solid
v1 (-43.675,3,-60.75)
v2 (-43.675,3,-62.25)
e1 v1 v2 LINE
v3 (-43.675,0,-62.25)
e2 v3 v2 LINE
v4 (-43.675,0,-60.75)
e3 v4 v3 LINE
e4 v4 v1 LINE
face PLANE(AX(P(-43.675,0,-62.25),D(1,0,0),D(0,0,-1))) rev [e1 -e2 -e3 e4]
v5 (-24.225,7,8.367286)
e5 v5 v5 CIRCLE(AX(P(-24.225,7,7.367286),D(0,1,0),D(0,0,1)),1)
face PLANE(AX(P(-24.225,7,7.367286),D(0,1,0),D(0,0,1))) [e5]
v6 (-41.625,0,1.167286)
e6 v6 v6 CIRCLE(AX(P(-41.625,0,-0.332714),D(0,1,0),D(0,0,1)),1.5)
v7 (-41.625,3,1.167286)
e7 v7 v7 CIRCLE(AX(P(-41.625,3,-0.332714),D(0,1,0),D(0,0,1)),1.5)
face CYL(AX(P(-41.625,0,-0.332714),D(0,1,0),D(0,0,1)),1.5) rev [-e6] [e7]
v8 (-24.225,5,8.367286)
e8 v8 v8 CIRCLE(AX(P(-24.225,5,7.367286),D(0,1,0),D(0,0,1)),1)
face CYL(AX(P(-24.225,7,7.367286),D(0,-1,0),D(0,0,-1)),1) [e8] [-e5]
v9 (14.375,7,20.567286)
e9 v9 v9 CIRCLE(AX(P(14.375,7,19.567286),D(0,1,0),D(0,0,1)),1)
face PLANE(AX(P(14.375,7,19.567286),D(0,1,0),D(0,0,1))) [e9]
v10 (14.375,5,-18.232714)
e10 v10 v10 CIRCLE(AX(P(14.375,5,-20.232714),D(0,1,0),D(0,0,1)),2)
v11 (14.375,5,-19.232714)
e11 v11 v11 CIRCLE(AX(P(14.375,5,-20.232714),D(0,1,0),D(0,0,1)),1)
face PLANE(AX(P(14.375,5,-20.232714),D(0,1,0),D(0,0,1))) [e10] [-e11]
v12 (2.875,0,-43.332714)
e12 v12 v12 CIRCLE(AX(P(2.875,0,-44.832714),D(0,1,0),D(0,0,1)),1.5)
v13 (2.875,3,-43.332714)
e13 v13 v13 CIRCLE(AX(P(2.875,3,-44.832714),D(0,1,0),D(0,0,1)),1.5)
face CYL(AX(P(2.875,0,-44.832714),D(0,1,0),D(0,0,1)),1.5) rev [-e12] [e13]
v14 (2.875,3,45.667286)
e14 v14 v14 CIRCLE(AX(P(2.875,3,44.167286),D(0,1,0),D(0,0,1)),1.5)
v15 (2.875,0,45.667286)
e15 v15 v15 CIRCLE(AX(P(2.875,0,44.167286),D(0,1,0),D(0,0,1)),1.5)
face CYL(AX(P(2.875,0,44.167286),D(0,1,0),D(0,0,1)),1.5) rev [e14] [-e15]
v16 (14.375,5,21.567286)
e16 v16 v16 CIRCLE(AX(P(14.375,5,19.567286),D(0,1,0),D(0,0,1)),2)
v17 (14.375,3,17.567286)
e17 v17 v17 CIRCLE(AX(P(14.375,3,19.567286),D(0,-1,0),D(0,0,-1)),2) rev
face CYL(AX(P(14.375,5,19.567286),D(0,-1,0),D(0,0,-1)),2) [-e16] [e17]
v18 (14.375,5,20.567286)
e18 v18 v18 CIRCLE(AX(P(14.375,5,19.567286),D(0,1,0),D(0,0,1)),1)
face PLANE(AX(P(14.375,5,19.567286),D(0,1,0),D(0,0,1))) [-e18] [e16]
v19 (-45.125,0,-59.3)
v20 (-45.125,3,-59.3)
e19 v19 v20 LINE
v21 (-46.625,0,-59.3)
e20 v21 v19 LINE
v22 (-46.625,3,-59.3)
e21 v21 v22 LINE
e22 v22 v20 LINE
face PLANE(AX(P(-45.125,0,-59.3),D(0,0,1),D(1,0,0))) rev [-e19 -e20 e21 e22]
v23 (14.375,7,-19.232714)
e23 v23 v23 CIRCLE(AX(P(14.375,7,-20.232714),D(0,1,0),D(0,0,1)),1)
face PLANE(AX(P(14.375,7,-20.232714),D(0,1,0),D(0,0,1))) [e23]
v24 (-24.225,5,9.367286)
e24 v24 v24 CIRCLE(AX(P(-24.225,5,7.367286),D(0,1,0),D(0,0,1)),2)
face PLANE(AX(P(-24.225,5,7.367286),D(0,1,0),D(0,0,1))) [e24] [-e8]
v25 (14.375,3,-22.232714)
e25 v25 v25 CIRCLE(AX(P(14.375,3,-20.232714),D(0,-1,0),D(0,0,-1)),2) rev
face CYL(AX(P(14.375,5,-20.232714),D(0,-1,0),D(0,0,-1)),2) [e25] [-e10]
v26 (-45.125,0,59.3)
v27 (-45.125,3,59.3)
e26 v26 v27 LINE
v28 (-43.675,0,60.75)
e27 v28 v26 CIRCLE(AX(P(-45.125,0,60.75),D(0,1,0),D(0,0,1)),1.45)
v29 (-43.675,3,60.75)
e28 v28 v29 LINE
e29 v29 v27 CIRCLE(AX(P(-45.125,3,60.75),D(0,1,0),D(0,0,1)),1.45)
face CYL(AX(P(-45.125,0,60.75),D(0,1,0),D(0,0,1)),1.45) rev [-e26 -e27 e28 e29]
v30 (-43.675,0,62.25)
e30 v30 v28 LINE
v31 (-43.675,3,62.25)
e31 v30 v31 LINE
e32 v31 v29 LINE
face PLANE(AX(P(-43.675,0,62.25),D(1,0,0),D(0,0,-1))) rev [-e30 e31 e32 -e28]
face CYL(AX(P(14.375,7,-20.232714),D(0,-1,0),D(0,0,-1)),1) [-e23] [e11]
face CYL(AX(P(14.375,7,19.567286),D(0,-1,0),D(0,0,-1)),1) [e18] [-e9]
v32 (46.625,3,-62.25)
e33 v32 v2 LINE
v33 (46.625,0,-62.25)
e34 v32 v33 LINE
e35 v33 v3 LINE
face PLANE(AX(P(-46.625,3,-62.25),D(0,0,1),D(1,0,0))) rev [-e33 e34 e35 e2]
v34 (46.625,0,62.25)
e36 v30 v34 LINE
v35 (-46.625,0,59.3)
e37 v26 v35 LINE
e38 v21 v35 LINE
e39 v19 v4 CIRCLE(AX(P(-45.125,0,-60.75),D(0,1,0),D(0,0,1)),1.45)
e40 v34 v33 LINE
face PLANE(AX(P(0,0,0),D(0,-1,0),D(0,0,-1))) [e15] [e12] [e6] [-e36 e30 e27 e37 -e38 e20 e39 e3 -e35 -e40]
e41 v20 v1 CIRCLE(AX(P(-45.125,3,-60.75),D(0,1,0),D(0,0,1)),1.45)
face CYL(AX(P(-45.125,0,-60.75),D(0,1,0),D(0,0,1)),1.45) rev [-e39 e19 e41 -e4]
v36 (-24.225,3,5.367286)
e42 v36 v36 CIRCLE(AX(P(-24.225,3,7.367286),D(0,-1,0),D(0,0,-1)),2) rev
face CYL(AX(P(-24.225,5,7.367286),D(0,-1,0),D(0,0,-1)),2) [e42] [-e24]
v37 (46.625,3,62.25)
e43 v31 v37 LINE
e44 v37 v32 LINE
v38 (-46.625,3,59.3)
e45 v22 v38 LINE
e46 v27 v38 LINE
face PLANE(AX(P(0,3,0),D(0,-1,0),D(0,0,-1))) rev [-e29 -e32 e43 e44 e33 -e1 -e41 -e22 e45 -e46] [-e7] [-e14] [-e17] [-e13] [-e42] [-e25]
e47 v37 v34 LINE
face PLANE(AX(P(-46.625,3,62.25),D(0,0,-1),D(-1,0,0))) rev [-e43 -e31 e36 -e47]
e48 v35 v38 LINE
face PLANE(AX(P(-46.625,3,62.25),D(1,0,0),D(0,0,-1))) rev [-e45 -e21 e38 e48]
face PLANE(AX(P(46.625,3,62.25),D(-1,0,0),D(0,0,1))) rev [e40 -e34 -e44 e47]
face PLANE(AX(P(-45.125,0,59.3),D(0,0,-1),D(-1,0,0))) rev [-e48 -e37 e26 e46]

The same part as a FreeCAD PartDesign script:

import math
import FreeCAD as App
import Part
import Sketcher
from FreeCAD import Vector

doc = App.newDocument("Part")
body = doc.addObject("PartDesign::Body", "Body")

sketch1 = doc.addObject("Sketcher::SketchObject", "Sketch")
body.addObject(sketch1)
sketch1.AttachmentSupport = (doc.XZ_Plane, [""])
sketch1.MapMode = "FlatFace"
sketch1.addGeometry([
    Part.LineSegment(Vector(-47, -62, 0), Vector(-47, 62, 0)),
    Part.LineSegment(Vector(-47, 62, 0), Vector(47, 62, 0)),
    Part.LineSegment(Vector(47, 62, 0), Vector(47, -62, 0)),
    Part.LineSegment(Vector(47, -62, 0), Vector(-47, -62, 0)),
], False)
sketch1.addConstraint([
    Sketcher.Constraint("Coincident", 0, 2, 1, 1),
    Sketcher.Constraint("Coincident", 1, 2, 2, 1),
    Sketcher.Constraint("Coincident", 2, 2, 3, 1),
    Sketcher.Constraint("Coincident", 3, 2, 0, 1),
    Sketcher.Constraint("Vertical", 0),
    Sketcher.Constraint("Horizontal", 1),
    Sketcher.Constraint("Vertical", 2),
    Sketcher.Constraint("Horizontal", 3),
    Sketcher.Constraint("Symmetric", 0, 2, 2, 2, -1, 1),
    Sketcher.Constraint("DistanceY", 0, 1, 0, 2, 124.5),
    Sketcher.Constraint("DistanceX", 1, 1, 1, 2, 93.25),
])
pad1 = doc.addObject("PartDesign::Pad", "Pad")
body.addObject(pad1)
pad1.Profile = sketch1
pad1.Length = 3
pad1.Reversed = True

sketch2 = doc.addObject("Sketcher::SketchObject", "Sketch001")
body.addObject(sketch2)
sketch2.AttachmentSupport = (doc.XZ_Plane, [""])
sketch2.MapMode = "FlatFace"
sketch2.AttachmentOffset = App.Placement(Vector(0, 0, -3), App.Rotation())
sketch2.addGeometry([
    Part.Circle(Vector(-45.1, -60.8, 0), Vector(0, 0, 1), 1.4),
    Part.Circle(Vector(-45.1, 60.8, 0), Vector(0, 0, 1), 1.4),
], False)
sketch2.addConstraint([
    Sketcher.Constraint("Equal", 0, 1),
    Sketcher.Constraint("Symmetric", 0, 3, 1, 3, -1),
    Sketcher.Constraint("Diameter", 0, 2.9),
    Sketcher.Constraint("DistanceY", 0, 3, 1, 3, 121.5),
    Sketcher.Constraint("DistanceX", 0, 3, -1, 1, 45.125),
])
pocket1 = doc.addObject("PartDesign::Pocket", "Pocket")
body.addObject(pocket1)
pocket1.Profile = sketch2
pocket1.Type = "ThroughAll"
pocket1.Reversed = True

sketch3 = doc.addObject("Sketcher::SketchObject", "Sketch002")
body.addObject(sketch3)
sketch3.AttachmentSupport = (doc.XZ_Plane, [""])
sketch3.MapMode = "FlatFace"
sketch3.AttachmentOffset = App.Placement(Vector(0, 0, -3), App.Rotation())
sketch3.addGeometry([
    Part.Circle(Vector(-24.2, 7.4, 0), Vector(0, 0, 1), 2),
    Part.Circle(Vector(-24.2, 7.4, 0), Vector(0, 0, 1), 1),
    Part.Circle(Vector(14.4, -20.2, 0), Vector(0, 0, 1), 2),
    Part.Circle(Vector(14.4, -20.2, 0), Vector(0, 0, 1), 1),
    Part.Circle(Vector(14.4, 19.6, 0), Vector(0, 0, 1), 2),
    Part.Circle(Vector(14.4, 19.6, 0), Vector(0, 0, 1), 1),
], False)
sketch3.addConstraint([
    Sketcher.Constraint("Coincident", 1, 3, 0, 3),
    Sketcher.Constraint("Coincident", 3, 3, 2, 3),
    Sketcher.Constraint("Coincident", 5, 3, 4, 3),
    Sketcher.Constraint("Equal", 0, 2),
    Sketcher.Constraint("Equal", 1, 3),
    Sketcher.Constraint("Equal", 2, 4),
    Sketcher.Constraint("Equal", 3, 5),
    Sketcher.Constraint("Vertical", 3, 3, 4, 3),
    Sketcher.Constraint("Diameter", 0, 4.0),
    Sketcher.Constraint("Diameter", 1, 2.0),
    Sketcher.Constraint("DistanceX", 0, 3, 2, 3, 38.6),
    Sketcher.Constraint("DistanceY", 2, 3, 0, 3, 27.6),
    Sketcher.Constraint("DistanceY", 2, 3, 4, 3, 39.8),
    Sketcher.Constraint("DistanceX", 0, 3, -1, 1, 24.225),
    Sketcher.Constraint("DistanceY", -1, 1, 0, 3, 7.367286),
])
pad2 = doc.addObject("PartDesign::Pad", "Pad001")
body.addObject(pad2)
pad2.Profile = sketch3
pad2.Length = 2
pad2.Reversed = True

sketch4 = doc.addObject("Sketcher::SketchObject", "Sketch003")
body.addObject(sketch4)
sketch4.AttachmentSupport = (doc.XZ_Plane, [""])
sketch4.MapMode = "FlatFace"
sketch4.AttachmentOffset = App.Placement(Vector(0, 0, -3), App.Rotation())
sketch4.addGeometry([
    Part.Circle(Vector(-24.2, 7.4, 0), Vector(0, 0, 1), 1),
    Part.Circle(Vector(14.4, -20.2, 0), Vector(0, 0, 1), 1),
    Part.Circle(Vector(14.4, 19.6, 0), Vector(0, 0, 1), 1),
], False)
sketch4.addConstraint([
    Sketcher.Constraint("Equal", 0, 1),
    Sketcher.Constraint("Equal", 1, 2),
    Sketcher.Constraint("Vertical", 1, 3, 2, 3),
    Sketcher.Constraint("Diameter", 0, 2.0),
    Sketcher.Constraint("DistanceX", 0, 3, 1, 3, 38.6),
    Sketcher.Constraint("DistanceY", 1, 3, 0, 3, 27.6),
    Sketcher.Constraint("DistanceY", 1, 3, 2, 3, 39.8),
    Sketcher.Constraint("DistanceX", 0, 3, -1, 1, 24.225),
    Sketcher.Constraint("DistanceY", -1, 1, 0, 3, 7.367286),
])
pad3 = doc.addObject("PartDesign::Pad", "Pad002")
body.addObject(pad3)
pad3.Profile = sketch4
pad3.Length = 4
pad3.Reversed = True

sketch5 = doc.addObject("Sketcher::SketchObject", "Sketch004")
body.addObject(sketch5)
sketch5.AttachmentSupport = (doc.XZ_Plane, [""])
sketch5.MapMode = "FlatFace"
sketch5.AttachmentOffset = App.Placement(Vector(0, 0, -3), App.Rotation())
sketch5.addGeometry([
    Part.Circle(Vector(2.9, -44.8, 0), Vector(0, 0, 1), 1.5),
    Part.Circle(Vector(-41.6, -0.3, 0), Vector(0, 0, 1), 1.5),
    Part.Circle(Vector(2.9, 44.2, 0), Vector(0, 0, 1), 1.5),
], False)
sketch5.addConstraint([
    Sketcher.Constraint("Equal", 0, 1),
    Sketcher.Constraint("Equal", 1, 2),
    Sketcher.Constraint("Vertical", 0, 3, 2, 3),
    Sketcher.Constraint("Diameter", 0, 3.0),
    Sketcher.Constraint("DistanceY", 0, 3, 2, 3, 89.0),
    Sketcher.Constraint("DistanceX", 1, 3, 0, 3, 44.5),
    Sketcher.Constraint("DistanceY", 0, 3, 1, 3, 44.5),
    Sketcher.Constraint("DistanceX", -1, 1, 0, 3, 2.875),
    Sketcher.Constraint("DistanceY", 0, 3, -1, 1, 44.832714),
])
pocket2 = doc.addObject("PartDesign::Pocket", "Pocket001")
body.addObject(pocket2)
pocket2.Profile = sketch5
pocket2.Length = 3
pocket2.Reversed = True

sketch6 = doc.addObject("Sketcher::SketchObject", "Sketch005")
body.addObject(sketch6)
sketch6.AttachmentSupport = (doc.XZ_Plane, [""])
sketch6.MapMode = "FlatFace"
sketch6.AttachmentOffset = App.Placement(Vector(0, 0, -3), App.Rotation())
sketch6.addGeometry([
    Part.LineSegment(Vector(-46.6, -59.3, 0), Vector(-45.1, -59.3, 0)),
    Part.ArcOfCircle(Part.Circle(Vector(-45.1, -60.7, 0), Vector(0, 0, 1), 1.4), math.radians(0), math.radians(90)),
    Part.LineSegment(Vector(-43.7, -60.8, 0), Vector(-43.7, -62.2, 0)),
    Part.LineSegment(Vector(-43.7, -62.2, 0), Vector(-46.6, -62.2, 0)),
    Part.LineSegment(Vector(-46.6, -62.2, 0), Vector(-46.6, -59.3, 0)),
], False)
sketch6.addConstraint([
    Sketcher.Constraint("Tangent", 0, 2, 1, 2),
    Sketcher.Constraint("Tangent", 1, 1, 2, 1),
    Sketcher.Constraint("Coincident", 2, 2, 3, 1),
    Sketcher.Constraint("Coincident", 3, 2, 4, 1),
    Sketcher.Constraint("Coincident", 4, 2, 0, 1),
    Sketcher.Constraint("Horizontal", 0),
    Sketcher.Constraint("Vertical", 2),
    Sketcher.Constraint("Horizontal", 3),
    Sketcher.Constraint("Vertical", 4),
    Sketcher.Constraint("Equal", 0, 2),
    Sketcher.Constraint("Radius", 1, 1.45),
    Sketcher.Constraint("DistanceX", 0, 1, 0, 2, 1.5),
    Sketcher.Constraint("DistanceY", 0, 2, -1, 1, 59.3),
    Sketcher.Constraint("DistanceX", 1, 3, -1, 1, 45.125),
])
pocket3 = doc.addObject("PartDesign::Pocket", "Pocket002")
body.addObject(pocket3)
pocket3.Profile = sketch6
pocket3.Length = 3
pocket3.Reversed = True

sketch7 = doc.addObject("Sketcher::SketchObject", "Sketch006")
body.addObject(sketch7)
sketch7.AttachmentSupport = (doc.XZ_Plane, [""])
sketch7.MapMode = "FlatFace"
sketch7.AttachmentOffset = App.Placement(Vector(0, 0, -3), App.Rotation())
sketch7.addGeometry([
    Part.LineSegment(Vector(-45.1, 59.3, 0), Vector(-46.6, 59.3, 0)),
    Part.LineSegment(Vector(-46.6, 59.3, 0), Vector(-46.6, 62.2, 0)),
    Part.LineSegment(Vector(-46.6, 62.2, 0), Vector(-43.7, 62.2, 0)),
    Part.LineSegment(Vector(-43.7, 62.2, 0), Vector(-43.7, 60.8, 0)),
    Part.ArcOfCircle(Part.Circle(Vector(-45.1, 60.7, 0), Vector(0, 0, 1), 1.4), math.radians(-90), math.radians(0)),
], False)
sketch7.addConstraint([
    Sketcher.Constraint("Coincident", 0, 2, 1, 1),
    Sketcher.Constraint("Coincident", 1, 2, 2, 1),
    Sketcher.Constraint("Coincident", 2, 2, 3, 1),
    Sketcher.Constraint("Tangent", 3, 2, 4, 2),
    Sketcher.Constraint("Tangent", 4, 1, 0, 1),
    Sketcher.Constraint("Horizontal", 0),
    Sketcher.Constraint("Vertical", 1),
    Sketcher.Constraint("Horizontal", 2),
    Sketcher.Constraint("Vertical", 3),
    Sketcher.Constraint("Equal", 2, 1),
    Sketcher.Constraint("Radius", 4, 1.45),
    Sketcher.Constraint("DistanceX", 0, 2, 0, 1, 1.5),
    Sketcher.Constraint("DistanceY", -1, 1, 0, 2, 59.3),
    Sketcher.Constraint("DistanceX", 4, 3, -1, 1, 45.125),
])
pocket4 = doc.addObject("PartDesign::Pocket", "Pocket003")
body.addObject(pocket4)
pocket4.Profile = sketch7
pocket4.Length = 3
pocket4.Reversed = True

doc.recompute()
